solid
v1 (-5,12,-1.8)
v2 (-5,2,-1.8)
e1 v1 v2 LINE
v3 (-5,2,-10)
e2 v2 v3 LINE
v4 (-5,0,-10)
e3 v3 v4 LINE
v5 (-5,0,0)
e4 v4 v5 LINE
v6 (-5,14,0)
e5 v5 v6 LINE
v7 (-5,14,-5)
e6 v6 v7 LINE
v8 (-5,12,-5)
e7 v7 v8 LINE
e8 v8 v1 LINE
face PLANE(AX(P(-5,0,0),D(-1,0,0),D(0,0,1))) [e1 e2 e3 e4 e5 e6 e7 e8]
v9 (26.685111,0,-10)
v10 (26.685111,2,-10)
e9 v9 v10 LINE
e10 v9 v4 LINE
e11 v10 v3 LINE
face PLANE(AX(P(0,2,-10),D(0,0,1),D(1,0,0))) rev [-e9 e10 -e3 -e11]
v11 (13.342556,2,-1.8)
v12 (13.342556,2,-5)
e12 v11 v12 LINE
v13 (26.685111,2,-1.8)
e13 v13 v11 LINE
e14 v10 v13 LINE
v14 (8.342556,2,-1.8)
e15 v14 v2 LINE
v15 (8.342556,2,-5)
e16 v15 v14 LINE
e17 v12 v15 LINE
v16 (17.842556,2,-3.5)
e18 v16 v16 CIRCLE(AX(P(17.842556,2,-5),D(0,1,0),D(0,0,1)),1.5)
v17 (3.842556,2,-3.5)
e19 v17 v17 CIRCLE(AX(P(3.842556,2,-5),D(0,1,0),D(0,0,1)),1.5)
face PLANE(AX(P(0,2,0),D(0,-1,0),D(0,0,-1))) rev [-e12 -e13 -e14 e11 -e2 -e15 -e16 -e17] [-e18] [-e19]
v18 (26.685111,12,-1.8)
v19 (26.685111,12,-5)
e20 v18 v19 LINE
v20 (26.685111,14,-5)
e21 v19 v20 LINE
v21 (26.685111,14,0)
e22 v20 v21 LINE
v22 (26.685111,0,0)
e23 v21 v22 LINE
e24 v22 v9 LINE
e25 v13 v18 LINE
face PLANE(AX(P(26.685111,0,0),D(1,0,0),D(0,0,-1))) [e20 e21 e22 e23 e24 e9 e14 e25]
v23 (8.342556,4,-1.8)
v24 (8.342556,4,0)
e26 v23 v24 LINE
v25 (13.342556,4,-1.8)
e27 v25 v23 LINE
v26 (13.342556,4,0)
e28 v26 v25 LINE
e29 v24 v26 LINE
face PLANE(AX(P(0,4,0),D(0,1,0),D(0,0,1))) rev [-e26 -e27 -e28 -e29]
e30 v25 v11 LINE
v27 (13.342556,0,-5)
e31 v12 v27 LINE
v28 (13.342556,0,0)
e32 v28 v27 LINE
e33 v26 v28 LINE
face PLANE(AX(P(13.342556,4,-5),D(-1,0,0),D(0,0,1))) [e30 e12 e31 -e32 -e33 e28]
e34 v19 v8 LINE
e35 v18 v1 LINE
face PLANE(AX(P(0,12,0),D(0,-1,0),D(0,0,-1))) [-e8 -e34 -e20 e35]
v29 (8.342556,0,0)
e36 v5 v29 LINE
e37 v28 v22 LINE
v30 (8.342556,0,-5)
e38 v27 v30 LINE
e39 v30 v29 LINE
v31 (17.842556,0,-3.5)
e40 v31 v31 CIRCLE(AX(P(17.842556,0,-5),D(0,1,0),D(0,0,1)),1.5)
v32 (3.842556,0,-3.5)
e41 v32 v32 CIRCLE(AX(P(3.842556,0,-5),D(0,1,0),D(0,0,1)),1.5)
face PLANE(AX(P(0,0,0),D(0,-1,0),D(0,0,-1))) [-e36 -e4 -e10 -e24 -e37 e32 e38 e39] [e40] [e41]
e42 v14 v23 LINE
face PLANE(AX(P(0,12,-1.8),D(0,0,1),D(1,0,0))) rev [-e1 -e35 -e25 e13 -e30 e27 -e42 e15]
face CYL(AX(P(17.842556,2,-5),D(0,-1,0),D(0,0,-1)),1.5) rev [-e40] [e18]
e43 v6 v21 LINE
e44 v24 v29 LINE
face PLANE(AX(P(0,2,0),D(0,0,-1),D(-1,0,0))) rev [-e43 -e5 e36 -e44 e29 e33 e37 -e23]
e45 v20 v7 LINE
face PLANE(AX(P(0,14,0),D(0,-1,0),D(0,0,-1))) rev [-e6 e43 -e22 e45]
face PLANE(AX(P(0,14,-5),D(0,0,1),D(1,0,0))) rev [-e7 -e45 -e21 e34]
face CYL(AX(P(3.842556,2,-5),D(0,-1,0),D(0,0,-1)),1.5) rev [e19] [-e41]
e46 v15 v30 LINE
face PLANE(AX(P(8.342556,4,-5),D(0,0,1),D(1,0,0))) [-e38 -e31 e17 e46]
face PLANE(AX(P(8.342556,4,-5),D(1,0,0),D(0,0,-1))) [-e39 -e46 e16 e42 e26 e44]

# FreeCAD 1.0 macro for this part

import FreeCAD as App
import Part
import Sketcher
Q = App.Units.Quantity

doc = App.newDocument("Part")
body = doc.addObject("PartDesign::Body", "Body")

sketch1 = body.newObject("Sketcher::SketchObject", "Sketch")
sketch1.AttachmentSupport = (doc.getObject("XZ_Plane"), [""])
sketch1.MapMode = "FlatFace"
sketch1.addGeometry(Part.LineSegment(App.Vector(0, -10, 0), App.Vector(0, 0, 0)), False)
sketch1.addGeometry(Part.LineSegment(App.Vector(0, 0, 0), App.Vector(21.7, 0, 0)), False)
sketch1.addGeometry(Part.LineSegment(App.Vector(21.7, 0, 0), App.Vector(21.7, -10, 0)), False)
sketch1.addGeometry(Part.LineSegment(App.Vector(21.7, -10, 0), App.Vector(0, -10, 0)), False)
sketch1.addGeometry(Part.Circle(App.Vector(3.8, -5, 0), App.Vector(0, 0, 1), 1.5), False)
sketch1.addGeometry(Part.Circle(App.Vector(17.8, -5, 0), App.Vector(0, 0, 1), 1.5), False)
sketch1.addConstraint(Sketcher.Constraint("Coincident", 0, 2, 1, 1))
sketch1.addConstraint(Sketcher.Constraint("Coincident", 1, 2, 2, 1))
sketch1.addConstraint(Sketcher.Constraint("Coincident", 2, 2, 3, 1))
sketch1.addConstraint(Sketcher.Constraint("Coincident", 3, 2, 0, 1))
sketch1.addConstraint(Sketcher.Constraint("Vertical", 0))
sketch1.addConstraint(Sketcher.Constraint("Horizontal", 1))
sketch1.addConstraint(Sketcher.Constraint("Vertical", 2))
sketch1.addConstraint(Sketcher.Constraint("Horizontal", 3))
sketch1.addConstraint(Sketcher.Constraint("Coincident", 0, 2, -1, 1))
sketch1.addConstraint(Sketcher.Constraint("Equal", 4, 5))
sketch1.addConstraint(Sketcher.Constraint("Horizontal", 4, 3, 5, 3))
sketch1.addConstraint(Sketcher.Constraint("Diameter", 4, Q("3 mm")))
sketch1.addConstraint(Sketcher.Constraint("DistanceY", 0, 1, 0, 2, Q("10 mm")))
sketch1.addConstraint(Sketcher.Constraint("DistanceY", 4, 3, -1, 1, Q("5 mm")))
sketch1.addConstraint(Sketcher.Constraint("DistanceX", 4, 3, 5, 3, Q("14 mm")))
sketch1.addConstraint(Sketcher.Constraint("DistanceX", 1, 1, 1, 2, Q("21.685111 mm")))
sketch1.addConstraint(Sketcher.Constraint("DistanceX", -1, 1, 4, 3, Q("3.842556 mm")))
pad1 = body.newObject("PartDesign::Pad", "Pad")
pad1.Profile = sketch1
pad1.Length = 2
pad1.Reversed = True

sketch2 = body.newObject("Sketcher::SketchObject", "Sketch001")
sketch2.AttachmentSupport = (doc.getObject("XZ_Plane"), [""])
sketch2.MapMode = "FlatFace"
sketch2.AttachmentOffset = App.Placement(App.Vector(0, 0, -2), App.Rotation())
sketch2.addGeometry(Part.LineSegment(App.Vector(0, -1.8, 0), App.Vector(0, 0, 0)), False)
sketch2.addGeometry(Part.LineSegment(App.Vector(0, 0, 0), App.Vector(21.7, 0, 0)), False)
sketch2.addGeometry(Part.LineSegment(App.Vector(21.7, 0, 0), App.Vector(21.7, -1.8, 0)), False)
sketch2.addGeometry(Part.LineSegment(App.Vector(21.7, -1.8, 0), App.Vector(0, -1.8, 0)), False)
sketch2.addConstraint(Sketcher.Constraint("Coincident", 0, 2, 1, 1))
sketch2.addConstraint(Sketcher.Constraint("Coincident", 1, 2, 2, 1))
sketch2.addConstraint(Sketcher.Constraint("Coincident", 2, 2, 3, 1))
sketch2.addConstraint(Sketcher.Constraint("Coincident", 3, 2, 0, 1))
sketch2.addConstraint(Sketcher.Constraint("Vertical", 0))
sketch2.addConstraint(Sketcher.Constraint("Horizontal", 1))
sketch2.addConstraint(Sketcher.Constraint("Vertical", 2))
sketch2.addConstraint(Sketcher.Constraint("Horizontal", 3))
sketch2.addConstraint(Sketcher.Constraint("Coincident", 0, 2, -1, 1))
sketch2.addConstraint(Sketcher.Constraint("DistanceY", 0, 1, 0, 2, Q("1.8 mm")))
sketch2.addConstraint(Sketcher.Constraint("DistanceX", 1, 1, 1, 2, Q("21.685111 mm")))
pad2 = body.newObject("PartDesign::Pad", "Pad001")
pad2.Profile = sketch2
pad2.Length = 10
pad2.Reversed = True

sketch3 = body.newObject("Sketcher::SketchObject", "Sketch002")
sketch3.AttachmentSupport = (doc.getObject("XZ_Plane"), [""])
sketch3.MapMode = "FlatFace"
sketch3.AttachmentOffset = App.Placement(App.Vector(0, 0, -2), App.Rotation())
sketch3.addGeometry(Part.LineSegment(App.Vector(8, -5, 0), App.Vector(8, 0, 0)), False)
sketch3.addGeometry(Part.LineSegment(App.Vector(8, 0, 0), App.Vector(13, 0, 0)), False)
sketch3.addGeometry(Part.LineSegment(App.Vector(13, 0, 0), App.Vector(13, -5, 0)), False)
sketch3.addGeometry(Part.LineSegment(App.Vector(13, -5, 0), App.Vector(8, -5, 0)), False)
sketch3.addConstraint(Sketcher.Constraint("Coincident", 0, 2, 1, 1))
sketch3.addConstraint(Sketcher.Constraint("Coincident", 1, 2, 2, 1))
sketch3.addConstraint(Sketcher.Constraint("Coincident", 2, 2, 3, 1))
sketch3.addConstraint(Sketcher.Constraint("Coincident", 3, 2, 0, 1))
sketch3.addConstraint(Sketcher.Constraint("Vertical", 0))
sketch3.addConstraint(Sketcher.Constraint("Horizontal", 1))
sketch3.addConstraint(Sketcher.Constraint("Vertical", 2))
sketch3.addConstraint(Sketcher.Constraint("Horizontal", 3))
sketch3.addConstraint(Sketcher.Constraint("PointOnObject", 0, 2, -1))
sketch3.addConstraint(Sketcher.Constraint("Equal", 3, 0))
sketch3.addConstraint(Sketcher.Constraint("DistanceX", 1, 1, 1, 2, Q("5 mm")))
sketch3.addConstraint(Sketcher.Constraint("DistanceX", -1, 1, 0, 2, Q("8.342556 mm")))
pocket1 = body.newObject("PartDesign::Pocket", "Pocket")
pocket1.Profile = sketch3
pocket1.Type = "TwoLengths"
pocket1.Length = 2
pocket1.Length2 = 10

sketch4 = body.newObject("Sketcher::SketchObject", "Sketch003")
sketch4.AttachmentSupport = (doc.getObject("XZ_Plane"), [""])
sketch4.MapMode = "FlatFace"
sketch4.AttachmentOffset = App.Placement(App.Vector(0, 0, -12), App.Rotation())
sketch4.addGeometry(Part.LineSegment(App.Vector(0, -5, 0), App.Vector(0, 0, 0)), False)
sketch4.addGeometry(Part.LineSegment(App.Vector(0, 0, 0), App.Vector(22, 0, 0)), False)
sketch4.addGeometry(Part.LineSegment(App.Vector(22, 0, 0), App.Vector(22, -5, 0)), False)
sketch4.addGeometry(Part.LineSegment(App.Vector(22, -5, 0), App.Vector(0, -5, 0)), False)
sketch4.addConstraint(Sketcher.Constraint("Coincident", 0, 2, 1, 1))
sketch4.addConstraint(Sketcher.Constraint("Coincident", 1, 2, 2, 1))
sketch4.addConstraint(Sketcher.Constraint("Coincident", 2, 2, 3, 1))
sketch4.addConstraint(Sketcher.Constraint("Coincident", 3, 2, 0, 1))
sketch4.addConstraint(Sketcher.Constraint("Vertical", 0))
sketch4.addConstraint(Sketcher.Constraint("Horizontal", 1))
sketch4.addConstraint(Sketcher.Constraint("Vertical", 2))
sketch4.addConstraint(Sketcher.Constraint("Horizontal", 3))
sketch4.addConstraint(Sketcher.Constraint("Coincident", 0, 2, -1, 1))
sketch4.addConstraint(Sketcher.Constraint("DistanceY", 0, 1, 0, 2, Q("5 mm")))
sketch4.addConstraint(Sketcher.Constraint("DistanceX", 1, 1, 1, 2, Q("21.685111 mm")))
pad3 = body.newObject("PartDesign::Pad", "Pad002")
pad3.Profile = sketch4
pad3.Length = 2
pad3.Reversed = True

sketch5 = body.newObject("Sketcher::SketchObject", "Sketch004")
sketch5.AttachmentSupport = (doc.getObject("YZ_Plane"), [""])
sketch5.MapMode = "FlatFace"
sketch5.addGeometry(Part.LineSegment(App.Vector(0, -10, 0), App.Vector(0, 0, 0)), False)
sketch5.addGeometry(Part.LineSegment(App.Vector(0, 0, 0), App.Vector(14, 0, 0)), False)
sketch5.addGeometry(Part.LineSegment(App.Vector(14, 0, 0), App.Vector(14, -5, 0)), False)
sketch5.addGeometry(Part.LineSegment(App.Vector(14, -5, 0), App.Vector(12, -5, 0)), False)
sketch5.addGeometry(Part.LineSegment(App.Vector(12, -5, 0), App.Vector(12, -1.8, 0)), False)
sketch5.addGeometry(Part.LineSegment(App.Vector(12, -1.8, 0), App.Vector(2, -1.8, 0)), False)
sketch5.addGeometry(Part.LineSegment(App.Vector(2, -1.8, 0), App.Vector(2, -10, 0)), False)
sketch5.addGeometry(Part.LineSegment(App.Vector(2, -10, 0), App.Vector(0, -10, 0)), False)
sketch5.addConstraint(Sketcher.Constraint("Coincident", 0, 2, 1, 1))
sketch5.addConstraint(Sketcher.Constraint("Coincident", 1, 2, 2, 1))
sketch5.addConstraint(Sketcher.Constraint("Coincident", 2, 2, 3, 1))
sketch5.addConstraint(Sketcher.Constraint("Coincident", 3, 2, 4, 1))
sketch5.addConstraint(Sketcher.Constraint("Coincident", 4, 2, 5, 1))
sketch5.addConstraint(Sketcher.Constraint("Coincident", 5, 2, 6, 1))
sketch5.addConstraint(Sketcher.Constraint("Coincident", 6, 2, 7, 1))
sketch5.addConstraint(Sketcher.Constraint("Coincident", 7, 2, 0, 1))
sketch5.addConstraint(Sketcher.Constraint("Vertical", 0))
sketch5.addConstraint(Sketcher.Constraint("Horizontal", 1))
sketch5.addConstraint(Sketcher.Constraint("Vertical", 2))
sketch5.addConstraint(Sketcher.Constraint("Horizontal", 3))
sketch5.addConstraint(Sketcher.Constraint("Vertical", 4))
sketch5.addConstraint(Sketcher.Constraint("Horizontal", 5))
sketch5.addConstraint(Sketcher.Constraint("Vertical", 6))
sketch5.addConstraint(Sketcher.Constraint("Horizontal", 7))
sketch5.addConstraint(Sketcher.Constraint("Coincident", 0, 2, -1, 1))
sketch5.addConstraint(Sketcher.Constraint("Equal", 3, 7))
sketch5.addConstraint(Sketcher.Constraint("Equal", 5, 0))
sketch5.addConstraint(Sketcher.Constraint("DistanceX", 1, 1, 1, 2, Q("14 mm")))
sketch5.addConstraint(Sketcher.Constraint("DistanceX", 3, 2, 3, 1, Q("2 mm")))
sketch5.addConstraint(Sketcher.Constraint("DistanceY", 2, 2, 2, 1, Q("5 mm")))
sketch5.addConstraint(Sketcher.Constraint("DistanceY", 4, 1, 4, 2, Q("3.2 mm")))
pad4 = body.newObject("PartDesign::Pad", "Pad003")
pad4.Profile = sketch5
pad4.Length = 5
pad4.Reversed = True

sketch6 = body.newObject("Sketcher::SketchObject", "Sketch005")
sketch6.AttachmentSupport = (doc.getObject("YZ_Plane"), [""])
sketch6.MapMode = "FlatFace"
sketch6.AttachmentOffset = App.Placement(App.Vector(0, 0, 21.685111), App.Rotation())
sketch6.addGeometry(Part.LineSegment(App.Vector(0, 0, 0), App.Vector(0, -10, 0)), False)
sketch6.addGeometry(Part.LineSegment(App.Vector(0, -10, 0), App.Vector(2, -10, 0)), False)
sketch6.addGeometry(Part.LineSegment(App.Vector(2, -10, 0), App.Vector(2, -1.8, 0)), False)
sketch6.addGeometry(Part.LineSegment(App.Vector(2, -1.8, 0), App.Vector(12, -1.8, 0)), False)
sketch6.addGeometry(Part.LineSegment(App.Vector(12, -1.8, 0), App.Vector(12, -5, 0)), False)
sketch6.addGeometry(Part.LineSegment(App.Vector(12, -5, 0), App.Vector(14, -5, 0)), False)
sketch6.addGeometry(Part.LineSegment(App.Vector(14, -5, 0), App.Vector(14, 0, 0)), False)
sketch6.addGeometry(Part.LineSegment(App.Vector(14, 0, 0), App.Vector(0, 0, 0)), False)
sketch6.addConstraint(Sketcher.Constraint("Coincident", 0, 2, 1, 1))
sketch6.addConstraint(Sketcher.Constraint("Coincident", 1, 2, 2, 1))
sketch6.addConstraint(Sketcher.Constraint("Coincident", 2, 2, 3, 1))
sketch6.addConstraint(Sketcher.Constraint("Coincident", 3, 2, 4, 1))
sketch6.addConstraint(Sketcher.Constraint("Coincident", 4, 2, 5, 1))
sketch6.addConstraint(Sketcher.Constraint("Coincident", 5, 2, 6, 1))
sketch6.addConstraint(Sketcher.Constraint("Coincident", 6, 2, 7, 1))
sketch6.addConstraint(Sketcher.Constraint("Coincident", 7, 2, 0, 1))
sketch6.addConstraint(Sketcher.Constraint("Vertical", 0))
sketch6.addConstraint(Sketcher.Constraint("Horizontal", 1))
sketch6.addConstraint(Sketcher.Constraint("Vertical", 2))
sketch6.addConstraint(Sketcher.Constraint("Horizontal", 3))
sketch6.addConstraint(Sketcher.Constraint("Vertical", 4))
sketch6.addConstraint(Sketcher.Constraint("Horizontal", 5))
sketch6.addConstraint(Sketcher.Constraint("Vertical", 6))
sketch6.addConstraint(Sketcher.Constraint("Horizontal", 7))
sketch6.addConstraint(Sketcher.Constraint("Coincident", 7, 2, -1, 1))
sketch6.addConstraint(Sketcher.Constraint("Equal", 1, 5))
sketch6.addConstraint(Sketcher.Constraint("Equal", 3, 0))
sketch6.addConstraint(Sketcher.Constraint("DistanceX", 1, 1, 1, 2, Q("2 mm")))
sketch6.addConstraint(Sketcher.Constraint("DistanceX", 3, 1, 3, 2, Q("10 mm")))
sketch6.addConstraint(Sketcher.Constraint("DistanceY", 6, 1, 6, 2, Q("5 mm")))
sketch6.addConstraint(Sketcher.Constraint("DistanceY", 2, 1, 2, 2, Q("8.2 mm")))
pad5 = body.newObject("PartDesign::Pad", "Pad004")
pad5.Profile = sketch6
pad5.Length = 5

doc.recompute()
